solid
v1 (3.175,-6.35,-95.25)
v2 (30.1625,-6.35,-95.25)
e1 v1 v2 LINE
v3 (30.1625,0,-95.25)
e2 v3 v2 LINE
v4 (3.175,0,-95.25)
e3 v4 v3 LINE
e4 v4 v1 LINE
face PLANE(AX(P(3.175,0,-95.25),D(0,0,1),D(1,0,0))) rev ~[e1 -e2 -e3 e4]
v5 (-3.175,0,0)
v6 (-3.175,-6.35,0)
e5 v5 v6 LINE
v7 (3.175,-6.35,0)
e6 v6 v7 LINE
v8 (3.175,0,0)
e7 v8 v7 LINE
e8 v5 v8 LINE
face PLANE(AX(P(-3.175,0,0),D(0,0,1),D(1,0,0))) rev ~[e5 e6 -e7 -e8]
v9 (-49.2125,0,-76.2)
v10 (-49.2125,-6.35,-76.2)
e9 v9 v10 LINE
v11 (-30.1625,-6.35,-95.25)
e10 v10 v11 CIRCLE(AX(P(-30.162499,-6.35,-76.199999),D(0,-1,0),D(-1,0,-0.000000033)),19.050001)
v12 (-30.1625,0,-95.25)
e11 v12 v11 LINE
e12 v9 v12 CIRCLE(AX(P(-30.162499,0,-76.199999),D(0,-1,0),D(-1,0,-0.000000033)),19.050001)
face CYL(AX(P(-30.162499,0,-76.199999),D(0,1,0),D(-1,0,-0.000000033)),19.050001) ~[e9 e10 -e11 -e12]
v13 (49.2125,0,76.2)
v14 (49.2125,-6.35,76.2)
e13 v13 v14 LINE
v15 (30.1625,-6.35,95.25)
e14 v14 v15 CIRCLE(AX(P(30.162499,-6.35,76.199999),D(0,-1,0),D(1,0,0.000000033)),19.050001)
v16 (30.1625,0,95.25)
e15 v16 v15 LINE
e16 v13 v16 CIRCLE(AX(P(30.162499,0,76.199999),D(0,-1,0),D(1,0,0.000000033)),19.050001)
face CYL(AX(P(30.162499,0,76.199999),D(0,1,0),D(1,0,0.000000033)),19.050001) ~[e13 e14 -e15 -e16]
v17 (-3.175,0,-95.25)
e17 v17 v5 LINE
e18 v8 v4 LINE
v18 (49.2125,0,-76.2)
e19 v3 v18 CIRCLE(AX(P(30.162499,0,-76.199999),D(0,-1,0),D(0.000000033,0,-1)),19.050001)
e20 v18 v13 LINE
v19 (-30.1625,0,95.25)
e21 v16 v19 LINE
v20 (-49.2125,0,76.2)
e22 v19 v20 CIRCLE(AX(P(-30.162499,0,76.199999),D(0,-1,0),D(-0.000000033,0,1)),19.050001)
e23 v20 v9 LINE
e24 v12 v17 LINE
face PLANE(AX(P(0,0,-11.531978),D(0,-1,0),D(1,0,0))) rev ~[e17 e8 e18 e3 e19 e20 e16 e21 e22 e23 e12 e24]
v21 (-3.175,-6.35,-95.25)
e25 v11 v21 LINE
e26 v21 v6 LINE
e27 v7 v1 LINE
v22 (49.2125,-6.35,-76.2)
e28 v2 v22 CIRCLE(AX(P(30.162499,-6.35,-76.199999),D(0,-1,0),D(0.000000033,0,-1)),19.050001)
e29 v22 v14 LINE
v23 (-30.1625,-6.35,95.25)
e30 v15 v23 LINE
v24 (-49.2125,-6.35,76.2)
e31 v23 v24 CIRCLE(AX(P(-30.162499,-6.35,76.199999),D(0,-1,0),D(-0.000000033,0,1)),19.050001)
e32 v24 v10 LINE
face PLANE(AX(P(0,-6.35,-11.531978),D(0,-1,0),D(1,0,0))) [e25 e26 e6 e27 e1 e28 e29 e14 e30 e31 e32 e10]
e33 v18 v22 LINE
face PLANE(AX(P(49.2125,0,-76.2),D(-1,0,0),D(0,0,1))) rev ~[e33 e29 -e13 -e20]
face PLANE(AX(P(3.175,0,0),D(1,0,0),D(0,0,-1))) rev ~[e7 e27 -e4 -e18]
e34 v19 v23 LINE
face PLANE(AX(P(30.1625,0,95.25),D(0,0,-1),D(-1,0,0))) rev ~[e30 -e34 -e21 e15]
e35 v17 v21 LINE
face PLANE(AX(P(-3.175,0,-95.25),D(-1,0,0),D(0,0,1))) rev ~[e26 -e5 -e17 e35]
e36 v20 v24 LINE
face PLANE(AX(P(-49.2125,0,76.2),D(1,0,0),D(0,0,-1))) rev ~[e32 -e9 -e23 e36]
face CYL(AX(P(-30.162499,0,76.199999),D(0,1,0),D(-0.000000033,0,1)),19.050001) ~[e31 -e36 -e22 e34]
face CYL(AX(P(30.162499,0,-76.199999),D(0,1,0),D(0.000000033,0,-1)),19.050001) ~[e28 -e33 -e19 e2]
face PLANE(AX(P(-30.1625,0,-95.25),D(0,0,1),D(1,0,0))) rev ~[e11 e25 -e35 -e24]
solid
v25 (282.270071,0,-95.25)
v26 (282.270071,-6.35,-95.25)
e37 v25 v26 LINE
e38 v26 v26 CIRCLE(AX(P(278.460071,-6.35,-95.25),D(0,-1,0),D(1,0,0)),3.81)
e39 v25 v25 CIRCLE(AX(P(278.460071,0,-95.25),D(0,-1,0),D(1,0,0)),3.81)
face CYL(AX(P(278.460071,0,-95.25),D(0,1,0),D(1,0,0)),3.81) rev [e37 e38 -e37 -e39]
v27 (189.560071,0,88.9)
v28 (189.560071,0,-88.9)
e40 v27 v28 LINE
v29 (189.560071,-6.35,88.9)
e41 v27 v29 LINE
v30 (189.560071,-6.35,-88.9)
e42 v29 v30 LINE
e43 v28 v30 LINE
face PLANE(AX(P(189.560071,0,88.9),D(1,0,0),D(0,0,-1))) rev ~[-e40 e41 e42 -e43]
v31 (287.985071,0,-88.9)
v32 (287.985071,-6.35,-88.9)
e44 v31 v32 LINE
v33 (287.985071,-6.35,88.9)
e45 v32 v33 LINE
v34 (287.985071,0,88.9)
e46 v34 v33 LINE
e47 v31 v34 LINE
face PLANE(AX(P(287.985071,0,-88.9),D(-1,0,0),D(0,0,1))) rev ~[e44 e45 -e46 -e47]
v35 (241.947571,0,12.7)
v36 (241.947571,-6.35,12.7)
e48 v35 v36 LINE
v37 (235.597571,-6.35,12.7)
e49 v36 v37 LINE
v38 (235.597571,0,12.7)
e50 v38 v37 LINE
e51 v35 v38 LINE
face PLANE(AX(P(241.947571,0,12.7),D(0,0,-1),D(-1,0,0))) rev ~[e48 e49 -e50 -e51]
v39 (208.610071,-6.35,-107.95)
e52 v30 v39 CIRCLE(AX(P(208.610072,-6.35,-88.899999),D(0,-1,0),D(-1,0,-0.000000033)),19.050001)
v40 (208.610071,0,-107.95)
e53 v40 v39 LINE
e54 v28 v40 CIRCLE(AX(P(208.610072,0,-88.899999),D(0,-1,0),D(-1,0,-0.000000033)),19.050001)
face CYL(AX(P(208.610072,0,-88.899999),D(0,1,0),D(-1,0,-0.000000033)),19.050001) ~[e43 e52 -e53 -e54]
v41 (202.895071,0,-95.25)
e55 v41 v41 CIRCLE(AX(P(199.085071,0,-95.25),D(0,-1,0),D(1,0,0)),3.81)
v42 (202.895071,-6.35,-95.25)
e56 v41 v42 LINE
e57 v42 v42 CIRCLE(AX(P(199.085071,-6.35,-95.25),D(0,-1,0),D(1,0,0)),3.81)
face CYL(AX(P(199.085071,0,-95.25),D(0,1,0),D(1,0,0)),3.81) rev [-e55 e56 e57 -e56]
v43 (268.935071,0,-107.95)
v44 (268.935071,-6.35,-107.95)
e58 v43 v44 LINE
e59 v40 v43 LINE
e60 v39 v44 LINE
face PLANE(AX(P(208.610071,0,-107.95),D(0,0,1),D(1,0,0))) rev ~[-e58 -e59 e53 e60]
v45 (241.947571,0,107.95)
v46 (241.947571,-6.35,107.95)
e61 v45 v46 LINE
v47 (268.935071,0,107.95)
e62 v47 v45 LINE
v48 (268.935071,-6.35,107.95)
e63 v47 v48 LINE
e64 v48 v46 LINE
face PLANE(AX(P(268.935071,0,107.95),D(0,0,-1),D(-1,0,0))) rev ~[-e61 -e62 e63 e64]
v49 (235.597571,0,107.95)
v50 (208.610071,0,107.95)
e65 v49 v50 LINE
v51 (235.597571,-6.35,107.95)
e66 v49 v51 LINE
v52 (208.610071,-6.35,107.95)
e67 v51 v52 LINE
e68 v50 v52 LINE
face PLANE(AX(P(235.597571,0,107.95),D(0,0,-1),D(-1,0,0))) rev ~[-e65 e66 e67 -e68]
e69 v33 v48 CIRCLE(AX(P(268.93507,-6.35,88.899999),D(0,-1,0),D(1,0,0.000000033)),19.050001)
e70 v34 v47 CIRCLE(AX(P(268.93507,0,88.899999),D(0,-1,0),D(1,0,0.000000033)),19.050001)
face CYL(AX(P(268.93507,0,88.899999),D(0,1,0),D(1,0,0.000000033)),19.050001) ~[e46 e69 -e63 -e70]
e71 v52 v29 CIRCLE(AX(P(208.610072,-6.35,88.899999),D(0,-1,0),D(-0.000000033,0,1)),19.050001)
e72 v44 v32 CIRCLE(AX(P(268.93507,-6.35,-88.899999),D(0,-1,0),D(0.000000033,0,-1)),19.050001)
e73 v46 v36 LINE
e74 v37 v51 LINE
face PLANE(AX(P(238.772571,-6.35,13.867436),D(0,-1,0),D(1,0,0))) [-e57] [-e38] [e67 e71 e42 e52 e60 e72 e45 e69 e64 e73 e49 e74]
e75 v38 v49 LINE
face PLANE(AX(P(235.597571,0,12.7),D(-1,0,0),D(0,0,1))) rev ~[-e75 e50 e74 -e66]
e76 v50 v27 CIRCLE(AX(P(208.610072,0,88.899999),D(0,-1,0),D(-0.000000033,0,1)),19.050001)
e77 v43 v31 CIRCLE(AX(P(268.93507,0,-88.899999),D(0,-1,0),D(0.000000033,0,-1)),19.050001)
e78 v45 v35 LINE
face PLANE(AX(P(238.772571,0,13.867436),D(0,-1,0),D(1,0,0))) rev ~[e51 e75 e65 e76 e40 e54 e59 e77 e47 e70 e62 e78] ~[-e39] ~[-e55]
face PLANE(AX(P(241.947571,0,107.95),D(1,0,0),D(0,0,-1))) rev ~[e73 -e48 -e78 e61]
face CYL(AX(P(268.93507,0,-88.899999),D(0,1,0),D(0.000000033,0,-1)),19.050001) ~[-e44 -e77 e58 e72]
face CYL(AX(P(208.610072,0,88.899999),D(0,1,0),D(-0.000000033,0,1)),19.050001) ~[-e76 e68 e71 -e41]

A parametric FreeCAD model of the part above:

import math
import FreeCAD as App
import Part
import Sketcher

V = App.Vector
Q = App.Units.Quantity

doc = App.newDocument("Part")
params = doc.addObject("Spreadsheet::Sheet", "Params")
for row, (alias, value) in enumerate([
    ("sketch1_height", "6 in"),
    ("sketch1_radius", "0.75 in"),
    ("sketch1_width", "0.25 in"),
    ("sketch1_width2", "2.375 in"),
    ("pad1_length", "0.25 in"),
    ("sketch2_diameter", "0.3 in"),
    ("sketch2_height", "7 in"),
    ("sketch2_radius", "0.75 in"),
    ("sketch2_width", "0.25 in"),
    ("sketch2_width2", "1.0625 in"),
    ("pad2_length", "0.25 in"),
], start=1):
    params.set(f"A{row}", alias)
    params.set(f"B{row}", "=" + value)
    params.setAlias(f"B{row}", alias)

body = doc.addObject("PartDesign::Body", "Body")

# Sketch on XZ plane
sketch1 = body.newObject("Sketcher::SketchObject", "Sketch")
sketch1.AttachmentSupport = (doc.getObject("XZ_Plane"), [""])
sketch1.MapMode = "FlatFace"
sketch1.addGeometry(Part.ArcOfCircle(Part.Circle(V(30.162499, 76.199999, 0), V(0, 0, 1), 19.050001), math.radians(0.000002), math.radians(89.999998)), False)
sketch1.addGeometry(Part.LineSegment(V(30.1625, 95.25, 0), V(-30.1625, 95.25, 0)), False)
sketch1.addGeometry(Part.ArcOfCircle(Part.Circle(V(-30.162499, 76.199999, 0), V(0, 0, 1), 19.050001), math.radians(90.000002), math.radians(179.999998)), False)
sketch1.addGeometry(Part.LineSegment(V(-49.2125, 76.2, 0), V(-49.2125, -76.2, 0)), False)
sketch1.addGeometry(Part.ArcOfCircle(Part.Circle(V(-30.162499, -76.199999, 0), V(0, 0, 1), 19.050001), math.radians(-179.999998), math.radians(-90.000002)), False)
sketch1.addGeometry(Part.LineSegment(V(-30.1625, -95.25, 0), V(-3.175, -95.25, 0)), False)
sketch1.addGeometry(Part.LineSegment(V(-3.175, -95.25, 0), V(-3.175, 0, 0)), False)
sketch1.addGeometry(Part.LineSegment(V(-3.175, 0, 0), V(3.175, 0, 0)), False)
sketch1.addGeometry(Part.LineSegment(V(3.175, 0, 0), V(3.175, -95.25, 0)), False)
sketch1.addGeometry(Part.LineSegment(V(3.175, -95.25, 0), V(30.1625, -95.25, 0)), False)
sketch1.addGeometry(Part.ArcOfCircle(Part.Circle(V(30.162499, -76.199999, 0), V(0, 0, 1), 19.050001), math.radians(-89.999998), math.radians(-0.000002)), False)
sketch1.addGeometry(Part.LineSegment(V(49.2125, -76.2, 0), V(49.2125, 76.2, 0)), False)
sketch1.addConstraint(Sketcher.Constraint("Tangent", 0, 2, 1, 1))
sketch1.addConstraint(Sketcher.Constraint("Tangent", 1, 2, 2, 1))
sketch1.addConstraint(Sketcher.Constraint("Tangent", 2, 2, 3, 1))
sketch1.addConstraint(Sketcher.Constraint("Tangent", 3, 2, 4, 1))
sketch1.addConstraint(Sketcher.Constraint("Tangent", 4, 2, 5, 1))
sketch1.addConstraint(Sketcher.Constraint("Coincident", 5, 2, 6, 1))
sketch1.addConstraint(Sketcher.Constraint("Coincident", 6, 2, 7, 1))
sketch1.addConstraint(Sketcher.Constraint("Coincident", 7, 2, 8, 1))
sketch1.addConstraint(Sketcher.Constraint("Coincident", 8, 2, 9, 1))
sketch1.addConstraint(Sketcher.Constraint("Tangent", 9, 2, 10, 1))
sketch1.addConstraint(Sketcher.Constraint("Tangent", 10, 2, 11, 1))
sketch1.addConstraint(Sketcher.Constraint("Tangent", 11, 2, 0, 1))
sketch1.addConstraint(Sketcher.Constraint("Horizontal", 1))
sketch1.addConstraint(Sketcher.Constraint("Vertical", 3))
sketch1.addConstraint(Sketcher.Constraint("Horizontal", 5))
sketch1.addConstraint(Sketcher.Constraint("Vertical", 6))
sketch1.addConstraint(Sketcher.Constraint("Horizontal", 7))
sketch1.addConstraint(Sketcher.Constraint("Vertical", 8))
sketch1.addConstraint(Sketcher.Constraint("Horizontal", 9))
sketch1.addConstraint(Sketcher.Constraint("Vertical", 11))
sketch1.addConstraint(Sketcher.Constraint("Equal", 0, 2))
sketch1.addConstraint(Sketcher.Constraint("Equal", 2, 4))
sketch1.addConstraint(Sketcher.Constraint("Equal", 4, 10))
sketch1.addConstraint(Sketcher.Constraint("Symmetric", 0, 3, 4, 3, -1, 1))
sketch1.addConstraint(Sketcher.Constraint("Symmetric", 6, 2, 7, 2, -1, 1))
sketch1.addConstraint(Sketcher.Constraint("Horizontal", 4, 3, 10, 3))
sketch1.addConstraint(Sketcher.Constraint("DistanceY", 3, 2, 3, 1, Q("6 in")))
sketch1.addConstraint(Sketcher.Constraint("Radius", 0, Q("0.75 in")))
sketch1.addConstraint(Sketcher.Constraint("DistanceX", 7, 1, 7, 2, Q("0.25 in")))
sketch1.addConstraint(Sketcher.Constraint("DistanceX", 1, 2, 1, 1, Q("2.375 in")))
sketch1.setExpression("Constraints[26]", "Params.sketch1_height")
sketch1.setExpression("Constraints[27]", "Params.sketch1_radius")
sketch1.setExpression("Constraints[28]", "Params.sketch1_width")
sketch1.setExpression("Constraints[29]", "Params.sketch1_width2")
pad1 = body.newObject("PartDesign::Pad", "Pad")
pad1.Profile = sketch1
pad1.setExpression("Length", "Params.pad1_length")
body2 = doc.addObject("PartDesign::Body", "Body001")

# Sketch on XZ plane
sketch2 = body2.newObject("Sketcher::SketchObject", "Sketch001")
sketch2.AttachmentSupport = (doc.getObject("XZ_Plane001"), [""])
sketch2.MapMode = "FlatFace"
sketch2.addGeometry(Part.ArcOfCircle(Part.Circle(V(268.93507, 88.899999, 0), V(0, 0, 1), 19.050001), math.radians(0.000002), math.radians(89.999998)), False)
sketch2.addGeometry(Part.LineSegment(V(268.935071, 107.95, 0), V(241.947571, 107.95, 0)), False)
sketch2.addGeometry(Part.LineSegment(V(241.947571, 107.95, 0), V(241.947571, 12.7, 0)), False)
sketch2.addGeometry(Part.LineSegment(V(241.947571, 12.7, 0), V(235.597571, 12.7, 0)), False)
sketch2.addGeometry(Part.LineSegment(V(235.597571, 12.7, 0), V(235.597571, 107.95, 0)), False)
sketch2.addGeometry(Part.LineSegment(V(235.597571, 107.95, 0), V(208.610071, 107.95, 0)), False)
sketch2.addGeometry(Part.ArcOfCircle(Part.Circle(V(208.610072, 88.899999, 0), V(0, 0, 1), 19.050001), math.radians(90.000002), math.radians(179.999998)), False)
sketch2.addGeometry(Part.LineSegment(V(189.560071, 88.9, 0), V(189.560071, -88.9, 0)), False)
sketch2.addGeometry(Part.ArcOfCircle(Part.Circle(V(208.610072, -88.899999, 0), V(0, 0, 1), 19.050001), math.radians(-179.999998), math.radians(-90.000002)), False)
sketch2.addGeometry(Part.LineSegment(V(208.610071, -107.95, 0), V(268.935071, -107.95, 0)), False)
sketch2.addGeometry(Part.ArcOfCircle(Part.Circle(V(268.93507, -88.899999, 0), V(0, 0, 1), 19.050001), math.radians(-89.999998), math.radians(-0.000002)), False)
sketch2.addGeometry(Part.LineSegment(V(287.985071, -88.9, 0), V(287.985071, 88.9, 0)), False)
sketch2.addGeometry(Part.Circle(V(199.085071, -95.25, 0), V(0, 0, 1), 3.81), False)
sketch2.addGeometry(Part.Circle(V(278.460071, -95.25, 0), V(0, 0, 1), 3.81), False)
sketch2.addConstraint(Sketcher.Constraint("Tangent", 0, 2, 1, 1))
sketch2.addConstraint(Sketcher.Constraint("Coincident", 1, 2, 2, 1))
sketch2.addConstraint(Sketcher.Constraint("Coincident", 2, 2, 3, 1))
sketch2.addConstraint(Sketcher.Constraint("Coincident", 3, 2, 4, 1))
sketch2.addConstraint(Sketcher.Constraint("Coincident", 4, 2, 5, 1))
sketch2.addConstraint(Sketcher.Constraint("Tangent", 5, 2, 6, 1))
sketch2.addConstraint(Sketcher.Constraint("Tangent", 6, 2, 7, 1))
sketch2.addConstraint(Sketcher.Constraint("Tangent", 7, 2, 8, 1))
sketch2.addConstraint(Sketcher.Constraint("Tangent", 8, 2, 9, 1))
sketch2.addConstraint(Sketcher.Constraint("Tangent", 9, 2, 10, 1))
sketch2.addConstraint(Sketcher.Constraint("Tangent", 10, 2, 11, 1))
sketch2.addConstraint(Sketcher.Constraint("Tangent", 11, 2, 0, 1))
sketch2.addConstraint(Sketcher.Constraint("Horizontal", 1))
sketch2.addConstraint(Sketcher.Constraint("Vertical", 2))
sketch2.addConstraint(Sketcher.Constraint("Horizontal", 3))
sketch2.addConstraint(Sketcher.Constraint("Vertical", 4))
sketch2.addConstraint(Sketcher.Constraint("Horizontal", 5))
sketch2.addConstraint(Sketcher.Constraint("Vertical", 7))
sketch2.addConstraint(Sketcher.Constraint("Horizontal", 9))
sketch2.addConstraint(Sketcher.Constraint("Vertical", 11))
sketch2.addConstraint(Sketcher.Constraint("Equal", 0, 6))
sketch2.addConstraint(Sketcher.Constraint("Equal", 6, 8))
sketch2.addConstraint(Sketcher.Constraint("Equal", 8, 10))
sketch2.addConstraint(Sketcher.Constraint("Equal", 12, 13))
sketch2.addConstraint(Sketcher.Constraint("Horizontal", 0, 3, 6, 3))
sketch2.addConstraint(Sketcher.Constraint("Horizontal", 12, 3, 13, 3))
sketch2.addConstraint(Sketcher.Constraint("Equal", 1, 5))
sketch2.addConstraint(Sketcher.Constraint("Diameter", 12, Q("0.3 in")))
sketch2.addConstraint(Sketcher.Constraint("DistanceY", 7, 2, 7, 1, Q("7 in")))
sketch2.addConstraint(Sketcher.Constraint("Radius", 0, Q("0.75 in")))
sketch2.addConstraint(Sketcher.Constraint("DistanceY", 13, 3, 0, 2, Q("8 in")))
sketch2.addConstraint(Sketcher.Constraint("DistanceY", 2, 2, 0, 3, Q("3 in")))
sketch2.addConstraint(Sketcher.Constraint("DistanceX", 3, 2, 3, 1, Q("0.25 in")))
sketch2.addConstraint(Sketcher.Constraint("DistanceY", -1, 1, 0, 3, Q("3.5 in")))
sketch2.addConstraint(Sketcher.Constraint("DistanceX", 7, 2, 13, 3, Q("3.5 in")))
sketch2.addConstraint(Sketcher.Constraint("DistanceX", 1, 2, 1, 1, Q("1.0625 in")))
sketch2.addConstraint(Sketcher.Constraint("DistanceX", 12, 3, 10, 3, Q("2.75 in")))
sketch2.addConstraint(Sketcher.Constraint("DistanceX", -1, 1, 0, 3, 268.93507))
sketch2.setExpression("Constraints[27]", "Params.sketch2_diameter")
sketch2.setExpression("Constraints[28]", "Params.sketch2_height")
sketch2.setExpression("Constraints[29]", "Params.sketch2_radius")
sketch2.setExpression("Constraints[32]", "Params.sketch2_width")
sketch2.setExpression("Constraints[35]", "Params.sketch2_width2")
pad2 = body2.newObject("PartDesign::Pad", "Pad001")
pad2.Profile = sketch2
pad2.setExpression("Length", "Params.pad2_length")

doc.recompute()
